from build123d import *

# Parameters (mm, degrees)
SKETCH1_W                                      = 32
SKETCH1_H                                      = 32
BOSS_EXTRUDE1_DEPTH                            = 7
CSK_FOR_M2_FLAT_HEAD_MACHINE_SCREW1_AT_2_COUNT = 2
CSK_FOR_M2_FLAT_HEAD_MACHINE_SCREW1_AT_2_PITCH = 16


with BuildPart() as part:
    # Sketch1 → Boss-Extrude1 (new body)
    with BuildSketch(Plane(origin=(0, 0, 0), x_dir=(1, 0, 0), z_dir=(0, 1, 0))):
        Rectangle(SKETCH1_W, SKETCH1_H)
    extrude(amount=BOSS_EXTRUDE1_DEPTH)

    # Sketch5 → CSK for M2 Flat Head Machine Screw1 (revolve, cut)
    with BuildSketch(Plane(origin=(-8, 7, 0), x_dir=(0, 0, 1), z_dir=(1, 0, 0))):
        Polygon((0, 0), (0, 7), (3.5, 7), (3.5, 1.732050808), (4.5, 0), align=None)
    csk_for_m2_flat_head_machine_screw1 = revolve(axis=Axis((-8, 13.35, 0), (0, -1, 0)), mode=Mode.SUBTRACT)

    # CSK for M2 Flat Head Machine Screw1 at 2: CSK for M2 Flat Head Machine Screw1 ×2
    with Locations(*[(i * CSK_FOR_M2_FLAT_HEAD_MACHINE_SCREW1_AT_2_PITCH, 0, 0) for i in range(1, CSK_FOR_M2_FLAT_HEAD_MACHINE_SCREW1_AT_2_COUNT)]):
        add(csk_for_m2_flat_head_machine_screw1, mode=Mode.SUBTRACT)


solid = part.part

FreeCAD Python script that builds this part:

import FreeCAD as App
import Part
import Sketcher

V = App.Vector
Q = App.Units.Quantity

doc = App.newDocument("Part")
body = doc.addObject("PartDesign::Body", "Body")

# Sketch on XZ plane
sketch1 = body.newObject("Sketcher::SketchObject", "Sketch")
sketch1.AttachmentSupport = (doc.getObject("XZ_Plane"), [""])
sketch1.MapMode = "FlatFace"
sketch1.addGeometry(Part.LineSegment(V(-16, -16, 0), V(-16, 16, 0)), False)
sketch1.addGeometry(Part.LineSegment(V(-16, 16, 0), V(16, 16, 0)), False)
sketch1.addGeometry(Part.LineSegment(V(16, 16, 0), V(16, -16, 0)), False)
sketch1.addGeometry(Part.LineSegment(V(16, -16, 0), V(-16, -16, 0)), False)
sketch1.addConstraint(Sketcher.Constraint("Coincident", 0, 2, 1, 1))
sketch1.addConstraint(Sketcher.Constraint("Coincident", 1, 2, 2, 1))
sketch1.addConstraint(Sketcher.Constraint("Coincident", 2, 2, 3, 1))
sketch1.addConstraint(Sketcher.Constraint("Coincident", 3, 2, 0, 1))
sketch1.addConstraint(Sketcher.Constraint("Vertical", 0))
sketch1.addConstraint(Sketcher.Constraint("Horizontal", 1))
sketch1.addConstraint(Sketcher.Constraint("Vertical", 2))
sketch1.addConstraint(Sketcher.Constraint("Horizontal", 3))
sketch1.addConstraint(Sketcher.Constraint("Symmetric", 0, 2, 2, 2, -1, 1))
sketch1.addConstraint(Sketcher.Constraint("Equal", 3, 0))
sketch1.addConstraint(Sketcher.Constraint("DistanceX", 1, 1, 1, 2, Q("32 mm")))
pad1 = body.newObject("PartDesign::Pad", "Pad")
pad1.Profile = sketch1
pad1.Length = 7
pad1.Reversed = True

# Sketch on YZ plane
sketch2 = body.newObject("Sketcher::SketchObject", "Sketch001")
sketch2.AttachmentSupport = (doc.getObject("YZ_Plane"), [""])
sketch2.MapMode = "FlatFace"
sketch2.AttachmentOffset = App.Placement(V(0, 0, -8), App.Rotation())
sketch2.addGeometry(Part.LineSegment(V(0, 0, 0), V(7, 0, 0)), False)
sketch2.addGeometry(Part.LineSegment(V(7, 0, 0), V(7, 4.5, 0)), False)
sketch2.addGeometry(Part.LineSegment(V(7, 4.5, 0), V(5.267949, 3.5, 0)), False)
sketch2.addGeometry(Part.LineSegment(V(5.267949, 3.5, 0), V(0, 3.5, 0)), False)
sketch2.addGeometry(Part.LineSegment(V(0, 3.5, 0), V(0, 0, 0)), False)
sketch2.addConstraint(Sketcher.Constraint("Coincident", 0, 2, 1, 1))
sketch2.addConstraint(Sketcher.Constraint("Coincident", 1, 2, 2, 1))
sketch2.addConstraint(Sketcher.Constraint("Coincident", 2, 2, 3, 1))
sketch2.addConstraint(Sketcher.Constraint("Coincident", 3, 2, 4, 1))
sketch2.addConstraint(Sketcher.Constraint("Coincident", 4, 2, 0, 1))
sketch2.addConstraint(Sketcher.Constraint("Horizontal", 0))
sketch2.addConstraint(Sketcher.Constraint("Vertical", 1))
sketch2.addConstraint(Sketcher.Constraint("Horizontal", 3))
sketch2.addConstraint(Sketcher.Constraint("Vertical", 4))
sketch2.addConstraint(Sketcher.Constraint("Coincident", 4, 2, -1, 1))
sketch2.addConstraint(Sketcher.Constraint("DistanceX", 0, 1, 0, 2, Q("7 mm")))
sketch2.addConstraint(Sketcher.Constraint("Angle", 2, Q("-150 deg")))
sketch2.addConstraint(Sketcher.Constraint("Distance", 2, Q("2 mm")))
sketch2.addConstraint(Sketcher.Constraint("DistanceY", 1, 1, 1, 2, Q("4.5 mm")))
groove = body.newObject("PartDesign::Groove", "Groove")
groove.Profile = sketch2
groove.ReferenceAxis = (sketch2, ["H_Axis"])
groove.Angle = 360
doc.recompute()

linearpattern = body.newObject("PartDesign::LinearPattern", "LinearPattern")
linearpattern.Originals = [groove]
linearpattern.Direction = (doc.getObject("X_Axis"), [""])
linearpattern.Mode = "offset"
linearpattern.Offset = 16
linearpattern.Occurrences = 2
body.Tip = linearpattern

doc.recompute()
